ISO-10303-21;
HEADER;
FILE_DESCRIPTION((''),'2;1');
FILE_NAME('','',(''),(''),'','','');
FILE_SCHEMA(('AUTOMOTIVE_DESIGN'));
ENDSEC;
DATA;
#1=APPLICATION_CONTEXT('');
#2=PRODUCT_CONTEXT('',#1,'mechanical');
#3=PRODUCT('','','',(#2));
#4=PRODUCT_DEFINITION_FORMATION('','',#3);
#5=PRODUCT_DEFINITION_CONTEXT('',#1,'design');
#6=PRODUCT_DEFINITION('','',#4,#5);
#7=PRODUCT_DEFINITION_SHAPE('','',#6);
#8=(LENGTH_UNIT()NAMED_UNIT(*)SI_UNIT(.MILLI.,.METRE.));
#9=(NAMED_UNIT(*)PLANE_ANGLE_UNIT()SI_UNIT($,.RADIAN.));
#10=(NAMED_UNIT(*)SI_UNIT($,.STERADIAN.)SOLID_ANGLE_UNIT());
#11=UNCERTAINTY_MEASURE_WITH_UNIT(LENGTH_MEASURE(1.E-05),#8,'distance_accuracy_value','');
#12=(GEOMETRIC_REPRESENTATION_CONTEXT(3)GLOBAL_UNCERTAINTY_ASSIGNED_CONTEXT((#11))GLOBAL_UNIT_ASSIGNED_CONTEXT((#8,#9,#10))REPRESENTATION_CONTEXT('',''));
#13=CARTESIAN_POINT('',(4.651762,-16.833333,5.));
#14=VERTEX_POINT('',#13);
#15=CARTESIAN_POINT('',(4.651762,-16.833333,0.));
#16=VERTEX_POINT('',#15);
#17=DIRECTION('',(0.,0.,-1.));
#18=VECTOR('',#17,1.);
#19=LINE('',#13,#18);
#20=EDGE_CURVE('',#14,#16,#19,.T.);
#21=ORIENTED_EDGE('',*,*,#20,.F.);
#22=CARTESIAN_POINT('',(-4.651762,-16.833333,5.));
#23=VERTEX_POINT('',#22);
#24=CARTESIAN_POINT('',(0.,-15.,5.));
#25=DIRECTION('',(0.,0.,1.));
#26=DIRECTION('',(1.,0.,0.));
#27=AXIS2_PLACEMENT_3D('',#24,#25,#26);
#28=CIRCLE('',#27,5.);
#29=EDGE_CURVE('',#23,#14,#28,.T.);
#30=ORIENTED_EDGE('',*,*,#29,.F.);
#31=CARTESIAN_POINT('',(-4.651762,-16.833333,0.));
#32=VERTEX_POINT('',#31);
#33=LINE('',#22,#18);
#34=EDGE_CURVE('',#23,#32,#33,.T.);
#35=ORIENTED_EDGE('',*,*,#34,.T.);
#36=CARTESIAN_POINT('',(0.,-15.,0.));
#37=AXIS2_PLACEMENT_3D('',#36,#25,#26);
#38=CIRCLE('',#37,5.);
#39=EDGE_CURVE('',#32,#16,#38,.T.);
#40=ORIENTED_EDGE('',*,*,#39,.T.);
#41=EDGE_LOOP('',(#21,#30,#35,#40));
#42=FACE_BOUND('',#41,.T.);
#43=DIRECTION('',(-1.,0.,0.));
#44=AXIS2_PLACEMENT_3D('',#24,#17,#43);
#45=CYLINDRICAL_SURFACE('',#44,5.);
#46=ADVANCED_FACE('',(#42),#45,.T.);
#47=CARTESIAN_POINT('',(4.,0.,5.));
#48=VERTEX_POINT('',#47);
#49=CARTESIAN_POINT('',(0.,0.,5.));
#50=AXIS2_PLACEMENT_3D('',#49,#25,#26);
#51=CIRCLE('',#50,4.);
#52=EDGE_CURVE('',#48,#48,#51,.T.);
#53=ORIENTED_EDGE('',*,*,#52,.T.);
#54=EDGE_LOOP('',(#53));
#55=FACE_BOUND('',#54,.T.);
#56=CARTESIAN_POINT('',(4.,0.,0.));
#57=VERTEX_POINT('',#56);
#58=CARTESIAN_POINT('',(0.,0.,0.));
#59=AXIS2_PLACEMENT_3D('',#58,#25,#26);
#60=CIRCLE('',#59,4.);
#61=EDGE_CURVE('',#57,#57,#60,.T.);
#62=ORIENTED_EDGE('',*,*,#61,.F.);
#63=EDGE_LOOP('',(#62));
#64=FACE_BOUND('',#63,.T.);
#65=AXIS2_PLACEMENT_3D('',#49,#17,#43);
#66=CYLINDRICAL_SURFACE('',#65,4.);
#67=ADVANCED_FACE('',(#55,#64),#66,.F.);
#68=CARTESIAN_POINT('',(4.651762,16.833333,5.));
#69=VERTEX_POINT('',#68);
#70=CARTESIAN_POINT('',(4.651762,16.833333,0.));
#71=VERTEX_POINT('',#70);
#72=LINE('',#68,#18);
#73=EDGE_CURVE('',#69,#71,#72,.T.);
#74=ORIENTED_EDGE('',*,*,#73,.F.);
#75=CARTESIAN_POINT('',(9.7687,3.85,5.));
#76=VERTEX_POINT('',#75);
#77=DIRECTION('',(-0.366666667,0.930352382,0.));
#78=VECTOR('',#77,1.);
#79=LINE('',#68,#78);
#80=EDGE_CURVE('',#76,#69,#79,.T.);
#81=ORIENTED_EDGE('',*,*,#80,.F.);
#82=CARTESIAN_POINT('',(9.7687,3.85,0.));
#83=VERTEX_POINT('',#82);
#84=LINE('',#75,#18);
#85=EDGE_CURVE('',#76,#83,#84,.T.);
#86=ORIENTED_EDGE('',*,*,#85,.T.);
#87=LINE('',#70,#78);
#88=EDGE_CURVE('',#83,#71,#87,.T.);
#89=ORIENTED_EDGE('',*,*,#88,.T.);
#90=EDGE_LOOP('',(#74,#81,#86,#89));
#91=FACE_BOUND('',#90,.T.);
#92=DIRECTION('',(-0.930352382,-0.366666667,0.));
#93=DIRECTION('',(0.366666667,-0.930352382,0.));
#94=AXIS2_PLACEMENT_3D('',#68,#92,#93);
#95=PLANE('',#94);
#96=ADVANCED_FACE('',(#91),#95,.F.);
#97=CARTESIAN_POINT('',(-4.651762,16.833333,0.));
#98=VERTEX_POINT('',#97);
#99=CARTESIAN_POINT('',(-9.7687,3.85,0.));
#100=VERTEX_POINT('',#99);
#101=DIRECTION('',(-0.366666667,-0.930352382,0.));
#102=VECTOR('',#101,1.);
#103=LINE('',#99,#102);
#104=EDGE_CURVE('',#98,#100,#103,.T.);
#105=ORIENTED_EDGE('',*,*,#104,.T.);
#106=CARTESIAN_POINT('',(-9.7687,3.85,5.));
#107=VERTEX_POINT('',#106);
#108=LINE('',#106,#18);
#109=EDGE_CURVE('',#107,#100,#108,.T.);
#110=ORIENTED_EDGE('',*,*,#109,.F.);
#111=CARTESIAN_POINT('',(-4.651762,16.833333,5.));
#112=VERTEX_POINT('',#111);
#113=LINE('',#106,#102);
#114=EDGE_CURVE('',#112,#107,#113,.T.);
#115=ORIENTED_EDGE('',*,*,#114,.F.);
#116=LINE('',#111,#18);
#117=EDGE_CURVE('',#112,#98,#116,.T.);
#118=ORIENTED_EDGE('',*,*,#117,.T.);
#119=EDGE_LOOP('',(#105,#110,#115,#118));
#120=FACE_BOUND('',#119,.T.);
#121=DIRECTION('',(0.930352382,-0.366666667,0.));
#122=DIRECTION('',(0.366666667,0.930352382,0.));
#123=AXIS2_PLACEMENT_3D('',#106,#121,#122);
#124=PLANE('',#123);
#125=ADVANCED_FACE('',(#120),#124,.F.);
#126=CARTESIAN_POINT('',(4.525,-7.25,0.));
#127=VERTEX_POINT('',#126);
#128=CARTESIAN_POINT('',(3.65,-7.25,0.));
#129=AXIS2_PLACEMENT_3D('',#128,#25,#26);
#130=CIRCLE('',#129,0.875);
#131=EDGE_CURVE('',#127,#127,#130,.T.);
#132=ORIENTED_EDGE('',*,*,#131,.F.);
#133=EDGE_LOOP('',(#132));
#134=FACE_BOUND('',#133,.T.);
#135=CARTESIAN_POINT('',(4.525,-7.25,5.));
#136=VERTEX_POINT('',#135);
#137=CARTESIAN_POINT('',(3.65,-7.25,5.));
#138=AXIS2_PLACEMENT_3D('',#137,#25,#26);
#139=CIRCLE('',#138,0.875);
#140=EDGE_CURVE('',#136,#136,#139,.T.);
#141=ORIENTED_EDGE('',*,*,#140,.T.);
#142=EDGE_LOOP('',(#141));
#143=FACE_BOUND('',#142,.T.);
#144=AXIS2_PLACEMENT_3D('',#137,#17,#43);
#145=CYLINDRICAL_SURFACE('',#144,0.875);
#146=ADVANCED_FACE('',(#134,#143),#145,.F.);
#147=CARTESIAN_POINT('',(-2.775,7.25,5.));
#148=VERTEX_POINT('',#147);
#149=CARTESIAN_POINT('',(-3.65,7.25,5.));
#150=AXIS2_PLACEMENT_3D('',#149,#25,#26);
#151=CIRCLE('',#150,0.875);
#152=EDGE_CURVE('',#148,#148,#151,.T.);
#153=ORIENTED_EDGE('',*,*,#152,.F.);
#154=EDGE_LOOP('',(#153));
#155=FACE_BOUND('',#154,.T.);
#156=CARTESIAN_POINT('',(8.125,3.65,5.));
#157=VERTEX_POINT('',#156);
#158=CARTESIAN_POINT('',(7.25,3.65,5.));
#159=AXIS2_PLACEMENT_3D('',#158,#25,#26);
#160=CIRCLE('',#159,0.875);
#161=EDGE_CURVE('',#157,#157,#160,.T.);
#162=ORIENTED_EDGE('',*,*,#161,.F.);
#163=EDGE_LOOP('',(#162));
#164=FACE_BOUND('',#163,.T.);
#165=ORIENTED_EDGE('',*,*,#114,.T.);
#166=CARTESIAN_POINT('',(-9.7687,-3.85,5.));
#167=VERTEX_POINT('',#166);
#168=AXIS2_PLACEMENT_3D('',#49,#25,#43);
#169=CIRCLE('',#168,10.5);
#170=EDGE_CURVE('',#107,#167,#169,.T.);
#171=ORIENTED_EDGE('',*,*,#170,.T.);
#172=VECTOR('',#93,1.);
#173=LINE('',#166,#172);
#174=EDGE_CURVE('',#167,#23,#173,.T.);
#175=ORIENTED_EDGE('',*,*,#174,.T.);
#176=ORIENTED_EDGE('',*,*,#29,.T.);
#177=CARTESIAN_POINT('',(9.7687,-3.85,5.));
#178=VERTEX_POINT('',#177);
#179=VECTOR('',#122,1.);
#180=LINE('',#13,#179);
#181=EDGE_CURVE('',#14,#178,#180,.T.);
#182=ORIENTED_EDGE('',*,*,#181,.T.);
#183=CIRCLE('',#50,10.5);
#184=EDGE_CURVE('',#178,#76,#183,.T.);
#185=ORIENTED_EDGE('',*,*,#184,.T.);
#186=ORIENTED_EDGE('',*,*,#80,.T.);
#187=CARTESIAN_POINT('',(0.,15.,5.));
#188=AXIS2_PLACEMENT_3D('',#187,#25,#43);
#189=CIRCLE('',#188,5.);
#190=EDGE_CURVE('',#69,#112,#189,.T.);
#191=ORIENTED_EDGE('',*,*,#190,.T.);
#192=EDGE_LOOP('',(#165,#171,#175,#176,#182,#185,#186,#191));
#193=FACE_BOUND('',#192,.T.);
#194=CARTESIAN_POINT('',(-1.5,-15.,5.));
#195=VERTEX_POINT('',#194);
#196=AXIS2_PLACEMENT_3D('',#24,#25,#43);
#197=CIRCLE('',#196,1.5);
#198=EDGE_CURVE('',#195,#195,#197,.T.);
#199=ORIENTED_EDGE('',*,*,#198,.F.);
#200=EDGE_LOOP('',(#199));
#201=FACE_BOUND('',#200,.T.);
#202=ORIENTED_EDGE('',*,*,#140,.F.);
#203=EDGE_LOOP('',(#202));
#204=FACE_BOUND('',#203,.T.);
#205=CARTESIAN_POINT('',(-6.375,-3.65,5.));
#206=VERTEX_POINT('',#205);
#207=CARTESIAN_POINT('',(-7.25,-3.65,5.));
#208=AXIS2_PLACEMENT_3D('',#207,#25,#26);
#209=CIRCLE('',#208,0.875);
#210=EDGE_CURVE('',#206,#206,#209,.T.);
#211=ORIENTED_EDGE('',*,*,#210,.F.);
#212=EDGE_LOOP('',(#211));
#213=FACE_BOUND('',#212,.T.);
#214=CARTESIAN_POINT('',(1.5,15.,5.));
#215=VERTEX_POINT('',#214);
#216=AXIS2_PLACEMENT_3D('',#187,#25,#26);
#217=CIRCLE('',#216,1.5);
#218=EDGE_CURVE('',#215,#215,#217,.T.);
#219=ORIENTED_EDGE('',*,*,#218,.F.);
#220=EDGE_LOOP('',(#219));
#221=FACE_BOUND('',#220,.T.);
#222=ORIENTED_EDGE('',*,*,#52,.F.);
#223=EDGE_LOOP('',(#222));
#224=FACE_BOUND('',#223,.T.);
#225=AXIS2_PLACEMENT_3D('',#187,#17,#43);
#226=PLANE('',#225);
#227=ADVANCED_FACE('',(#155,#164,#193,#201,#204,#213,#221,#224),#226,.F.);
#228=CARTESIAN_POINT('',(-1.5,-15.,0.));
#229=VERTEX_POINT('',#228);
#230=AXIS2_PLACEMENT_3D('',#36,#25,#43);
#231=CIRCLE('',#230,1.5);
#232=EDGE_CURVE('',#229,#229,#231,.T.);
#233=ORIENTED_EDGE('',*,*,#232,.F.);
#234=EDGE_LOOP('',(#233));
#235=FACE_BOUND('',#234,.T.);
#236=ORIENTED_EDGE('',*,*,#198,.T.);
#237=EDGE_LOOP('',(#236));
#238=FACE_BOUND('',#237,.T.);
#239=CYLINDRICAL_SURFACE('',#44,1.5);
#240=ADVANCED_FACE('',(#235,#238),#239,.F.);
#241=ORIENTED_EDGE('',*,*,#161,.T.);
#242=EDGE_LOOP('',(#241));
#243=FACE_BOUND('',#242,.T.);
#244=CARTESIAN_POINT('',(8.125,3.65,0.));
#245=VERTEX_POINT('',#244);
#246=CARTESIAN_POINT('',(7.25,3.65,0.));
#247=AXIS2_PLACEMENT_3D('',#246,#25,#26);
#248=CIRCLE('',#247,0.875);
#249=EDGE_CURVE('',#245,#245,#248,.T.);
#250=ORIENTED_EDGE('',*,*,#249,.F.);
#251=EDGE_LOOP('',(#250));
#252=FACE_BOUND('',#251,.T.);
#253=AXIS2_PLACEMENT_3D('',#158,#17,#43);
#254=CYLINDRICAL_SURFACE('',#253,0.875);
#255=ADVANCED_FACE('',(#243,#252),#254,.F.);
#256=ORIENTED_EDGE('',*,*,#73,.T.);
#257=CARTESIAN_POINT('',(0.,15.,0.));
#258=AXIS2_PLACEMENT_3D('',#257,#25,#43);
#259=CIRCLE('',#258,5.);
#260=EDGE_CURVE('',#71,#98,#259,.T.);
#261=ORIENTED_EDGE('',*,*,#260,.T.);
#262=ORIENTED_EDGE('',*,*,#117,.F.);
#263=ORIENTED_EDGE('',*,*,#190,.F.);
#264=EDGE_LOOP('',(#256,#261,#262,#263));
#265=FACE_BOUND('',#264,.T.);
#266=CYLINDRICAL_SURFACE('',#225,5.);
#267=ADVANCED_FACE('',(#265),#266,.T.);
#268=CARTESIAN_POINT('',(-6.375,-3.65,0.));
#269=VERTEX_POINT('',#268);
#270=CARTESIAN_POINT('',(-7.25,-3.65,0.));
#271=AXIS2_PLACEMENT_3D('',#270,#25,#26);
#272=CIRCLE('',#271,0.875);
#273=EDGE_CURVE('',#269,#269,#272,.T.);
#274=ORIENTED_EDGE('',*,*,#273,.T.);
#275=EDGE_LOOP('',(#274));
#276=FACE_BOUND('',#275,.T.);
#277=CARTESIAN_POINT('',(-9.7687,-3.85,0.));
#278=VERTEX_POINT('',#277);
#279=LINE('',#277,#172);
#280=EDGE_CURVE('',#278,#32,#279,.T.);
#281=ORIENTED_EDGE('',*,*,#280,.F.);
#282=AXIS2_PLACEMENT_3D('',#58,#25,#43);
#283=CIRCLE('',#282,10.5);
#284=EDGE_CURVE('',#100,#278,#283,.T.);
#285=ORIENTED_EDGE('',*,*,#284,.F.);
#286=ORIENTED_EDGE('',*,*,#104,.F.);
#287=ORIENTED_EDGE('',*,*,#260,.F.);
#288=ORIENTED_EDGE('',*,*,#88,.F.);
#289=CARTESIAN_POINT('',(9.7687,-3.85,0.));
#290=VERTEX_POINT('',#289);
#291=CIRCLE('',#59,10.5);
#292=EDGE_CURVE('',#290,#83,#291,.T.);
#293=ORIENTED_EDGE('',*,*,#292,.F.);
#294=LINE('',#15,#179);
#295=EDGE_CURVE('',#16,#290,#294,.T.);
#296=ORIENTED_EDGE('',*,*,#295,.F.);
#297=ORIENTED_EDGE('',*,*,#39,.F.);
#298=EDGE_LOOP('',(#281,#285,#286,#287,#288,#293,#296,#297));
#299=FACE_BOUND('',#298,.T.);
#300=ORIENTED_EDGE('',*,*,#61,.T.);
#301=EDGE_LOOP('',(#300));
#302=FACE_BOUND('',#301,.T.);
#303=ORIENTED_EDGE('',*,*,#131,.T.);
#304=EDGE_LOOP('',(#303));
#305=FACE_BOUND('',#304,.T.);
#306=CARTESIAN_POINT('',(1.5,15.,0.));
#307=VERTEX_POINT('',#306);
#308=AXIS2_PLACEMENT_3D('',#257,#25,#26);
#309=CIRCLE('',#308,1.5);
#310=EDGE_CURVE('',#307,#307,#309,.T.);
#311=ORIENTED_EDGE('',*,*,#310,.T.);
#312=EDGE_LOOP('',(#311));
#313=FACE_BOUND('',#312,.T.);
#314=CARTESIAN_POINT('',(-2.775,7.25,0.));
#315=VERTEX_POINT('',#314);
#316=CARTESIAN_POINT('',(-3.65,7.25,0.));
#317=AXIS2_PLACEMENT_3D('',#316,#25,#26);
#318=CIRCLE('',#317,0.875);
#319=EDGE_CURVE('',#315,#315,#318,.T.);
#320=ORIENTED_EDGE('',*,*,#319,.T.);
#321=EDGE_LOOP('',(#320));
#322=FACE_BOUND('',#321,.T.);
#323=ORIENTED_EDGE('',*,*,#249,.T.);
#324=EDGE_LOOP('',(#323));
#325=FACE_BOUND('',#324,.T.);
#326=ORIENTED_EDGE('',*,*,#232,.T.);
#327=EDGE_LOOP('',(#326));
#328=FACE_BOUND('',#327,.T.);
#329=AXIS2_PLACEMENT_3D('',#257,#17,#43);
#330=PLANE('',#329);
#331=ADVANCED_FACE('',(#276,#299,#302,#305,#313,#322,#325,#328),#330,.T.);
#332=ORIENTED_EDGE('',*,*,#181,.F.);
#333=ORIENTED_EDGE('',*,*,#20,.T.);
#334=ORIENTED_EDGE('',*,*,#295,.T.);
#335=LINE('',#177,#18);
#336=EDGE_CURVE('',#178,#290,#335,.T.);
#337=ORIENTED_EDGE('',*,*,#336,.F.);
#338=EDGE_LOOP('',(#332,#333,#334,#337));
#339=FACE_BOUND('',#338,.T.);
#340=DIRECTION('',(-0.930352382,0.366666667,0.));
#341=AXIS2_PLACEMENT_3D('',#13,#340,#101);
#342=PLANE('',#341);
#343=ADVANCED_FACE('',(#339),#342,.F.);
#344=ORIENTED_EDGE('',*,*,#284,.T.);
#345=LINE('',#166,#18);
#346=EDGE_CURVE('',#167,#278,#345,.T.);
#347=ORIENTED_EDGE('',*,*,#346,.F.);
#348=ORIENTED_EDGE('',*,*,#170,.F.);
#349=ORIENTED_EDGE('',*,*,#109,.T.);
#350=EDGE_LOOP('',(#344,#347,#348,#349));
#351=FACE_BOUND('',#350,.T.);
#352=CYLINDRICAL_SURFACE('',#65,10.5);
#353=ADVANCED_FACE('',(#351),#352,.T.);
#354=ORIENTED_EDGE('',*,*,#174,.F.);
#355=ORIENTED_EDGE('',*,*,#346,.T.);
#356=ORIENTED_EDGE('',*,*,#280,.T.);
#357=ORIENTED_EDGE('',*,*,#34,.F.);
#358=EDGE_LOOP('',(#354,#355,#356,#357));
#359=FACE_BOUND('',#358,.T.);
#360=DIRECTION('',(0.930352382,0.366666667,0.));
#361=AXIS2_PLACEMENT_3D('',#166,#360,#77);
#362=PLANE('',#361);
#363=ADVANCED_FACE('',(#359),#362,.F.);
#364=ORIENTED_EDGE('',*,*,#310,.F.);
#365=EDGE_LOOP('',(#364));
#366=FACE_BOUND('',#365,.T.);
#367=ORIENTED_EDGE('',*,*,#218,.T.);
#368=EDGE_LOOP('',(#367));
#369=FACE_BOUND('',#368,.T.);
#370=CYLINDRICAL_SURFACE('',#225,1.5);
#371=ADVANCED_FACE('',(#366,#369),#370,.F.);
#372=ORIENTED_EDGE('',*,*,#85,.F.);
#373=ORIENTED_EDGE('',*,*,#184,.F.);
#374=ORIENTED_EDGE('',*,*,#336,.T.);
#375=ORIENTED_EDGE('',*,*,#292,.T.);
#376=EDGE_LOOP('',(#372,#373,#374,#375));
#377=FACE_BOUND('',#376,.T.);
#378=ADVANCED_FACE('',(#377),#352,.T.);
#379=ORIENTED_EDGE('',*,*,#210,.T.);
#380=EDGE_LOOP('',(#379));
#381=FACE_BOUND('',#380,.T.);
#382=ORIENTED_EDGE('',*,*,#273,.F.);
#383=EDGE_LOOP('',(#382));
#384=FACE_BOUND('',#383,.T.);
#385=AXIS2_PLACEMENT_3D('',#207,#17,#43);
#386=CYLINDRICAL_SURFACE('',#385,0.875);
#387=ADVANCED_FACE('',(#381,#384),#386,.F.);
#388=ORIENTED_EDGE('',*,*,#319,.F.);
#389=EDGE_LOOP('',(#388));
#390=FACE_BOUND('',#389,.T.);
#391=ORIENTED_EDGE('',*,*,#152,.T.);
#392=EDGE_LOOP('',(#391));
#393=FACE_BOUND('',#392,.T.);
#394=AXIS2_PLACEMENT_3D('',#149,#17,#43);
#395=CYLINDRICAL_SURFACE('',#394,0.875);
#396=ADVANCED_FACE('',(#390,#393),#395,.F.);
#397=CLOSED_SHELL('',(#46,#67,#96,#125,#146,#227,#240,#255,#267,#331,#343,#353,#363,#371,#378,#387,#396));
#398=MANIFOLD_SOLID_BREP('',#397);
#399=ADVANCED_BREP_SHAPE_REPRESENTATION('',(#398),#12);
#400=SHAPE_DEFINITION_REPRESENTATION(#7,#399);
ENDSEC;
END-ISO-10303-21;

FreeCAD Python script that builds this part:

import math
import FreeCAD as App
import Part
import Sketcher
Q = App.Units.Quantity

doc = App.newDocument("Part")
body = doc.addObject("PartDesign::Body", "Body")

sketch1 = body.newObject("Sketcher::SketchObject", "Sketch")
sketch1.AttachmentSupport = (doc.getObject("XY_Plane"), [""])
sketch1.MapMode = "FlatFace"
sketch1.addGeometry([
    Part.LineSegment(App.Vector(-4.7, 16.8, 0), App.Vector(-9.8, 3.9, 0)),
    Part.ArcOfCircle(Part.Circle(App.Vector(0, 0, 0), App.Vector(0, 0, 1), 10.5), math.radians(158), math.radians(202)),
    Part.LineSegment(App.Vector(-9.8, -3.9, 0), App.Vector(-4.7, -16.8, 0)),
    Part.ArcOfCircle(Part.Circle(App.Vector(0, -15, 0), App.Vector(0, 0, 1), 5), math.radians(-158), math.radians(-22)),
    Part.LineSegment(App.Vector(4.7, -16.8, 0), App.Vector(9.8, -3.9, 0)),
    Part.ArcOfCircle(Part.Circle(App.Vector(0, 0, 0), App.Vector(0, 0, 1), 10.5), math.radians(-22), math.radians(22)),
    Part.LineSegment(App.Vector(9.8, 3.9, 0), App.Vector(4.7, 16.8, 0)),
    Part.ArcOfCircle(Part.Circle(App.Vector(0, 15, 0), App.Vector(0, 0, 1), 5), math.radians(22), math.radians(158)),
    Part.Circle(App.Vector(3.6, -7.2, 0), App.Vector(0, 0, 1), 0.9),
    Part.Circle(App.Vector(0, -15, 0), App.Vector(0, 0, 1), 1.5),
    Part.Circle(App.Vector(-7.2, -3.6, 0), App.Vector(0, 0, 1), 0.9),
    Part.Circle(App.Vector(7.2, 3.6, 0), App.Vector(0, 0, 1), 0.9),
    Part.Circle(App.Vector(0, 0, 0), App.Vector(0, 0, 1), 4),
    Part.Circle(App.Vector(-3.6, 7.2, 0), App.Vector(0, 0, 1), 0.9),
    Part.Circle(App.Vector(0, 15, 0), App.Vector(0, 0, 1), 1.5),
], False)
sketch1.addConstraint([
    Sketcher.Constraint("Tangent", 0, 2, 1, 1),
    Sketcher.Constraint("Tangent", 1, 2, 2, 1),
    Sketcher.Constraint("Tangent", 2, 2, 3, 1),
    Sketcher.Constraint("Tangent", 3, 2, 4, 1),
    Sketcher.Constraint("Tangent", 4, 2, 5, 1),
    Sketcher.Constraint("Tangent", 5, 2, 6, 1),
    Sketcher.Constraint("Tangent", 6, 2, 7, 1),
    Sketcher.Constraint("Tangent", 7, 2, 0, 1),
    Sketcher.Constraint("Coincident", 1, 3, -1, 1),
    Sketcher.Constraint("Coincident", 5, 3, -1, 1),
    Sketcher.Constraint("Coincident", 12, 3, -1, 1),
    Sketcher.Constraint("Coincident", 9, 3, 3, 3),
    Sketcher.Constraint("Coincident", 14, 3, 7, 3),
    Sketcher.Constraint("Equal", 1, 5),
    Sketcher.Constraint("Equal", 3, 7),
    Sketcher.Constraint("Equal", 8, 10),
    Sketcher.Constraint("Equal", 10, 11),
    Sketcher.Constraint("Equal", 11, 13),
    Sketcher.Constraint("Equal", 9, 14),
    Sketcher.Constraint("Symmetric", 3, 3, 7, 3, -1, 1),
    Sketcher.Constraint("Symmetric", 10, 3, 11, 3, -1, 1),
    Sketcher.Constraint("Symmetric", 8, 3, 13, 3, -1, 1),
    Sketcher.Constraint("PointOnObject", 3, 3, -2),
    Sketcher.Constraint("Diameter", 9, Q("3 mm")),
    Sketcher.Constraint("Diameter", 12, Q("8 mm")),
    Sketcher.Constraint("Radius", 3, Q("5 mm")),
    Sketcher.Constraint("Radius", 1, Q("10.5 mm")),
    Sketcher.Constraint("Diameter", 8, Q("1.75 mm")),
    Sketcher.Constraint("DistanceY", 3, 3, -1, 1, Q("15 mm")),
    Sketcher.Constraint("DistanceX", 10, 3, 8, 3, Q("10.9 mm")),
    Sketcher.Constraint("DistanceY", 8, 3, 10, 3, Q("3.6 mm")),
    Sketcher.Constraint("DistanceX", 8, 3, 11, 3, Q("3.6 mm")),
    Sketcher.Constraint("DistanceY", 8, 3, 11, 3, Q("10.9 mm")),
])
pad1 = body.newObject("PartDesign::Pad", "Pad")
pad1.Profile = sketch1
pad1.Length = 5

doc.recompute()
